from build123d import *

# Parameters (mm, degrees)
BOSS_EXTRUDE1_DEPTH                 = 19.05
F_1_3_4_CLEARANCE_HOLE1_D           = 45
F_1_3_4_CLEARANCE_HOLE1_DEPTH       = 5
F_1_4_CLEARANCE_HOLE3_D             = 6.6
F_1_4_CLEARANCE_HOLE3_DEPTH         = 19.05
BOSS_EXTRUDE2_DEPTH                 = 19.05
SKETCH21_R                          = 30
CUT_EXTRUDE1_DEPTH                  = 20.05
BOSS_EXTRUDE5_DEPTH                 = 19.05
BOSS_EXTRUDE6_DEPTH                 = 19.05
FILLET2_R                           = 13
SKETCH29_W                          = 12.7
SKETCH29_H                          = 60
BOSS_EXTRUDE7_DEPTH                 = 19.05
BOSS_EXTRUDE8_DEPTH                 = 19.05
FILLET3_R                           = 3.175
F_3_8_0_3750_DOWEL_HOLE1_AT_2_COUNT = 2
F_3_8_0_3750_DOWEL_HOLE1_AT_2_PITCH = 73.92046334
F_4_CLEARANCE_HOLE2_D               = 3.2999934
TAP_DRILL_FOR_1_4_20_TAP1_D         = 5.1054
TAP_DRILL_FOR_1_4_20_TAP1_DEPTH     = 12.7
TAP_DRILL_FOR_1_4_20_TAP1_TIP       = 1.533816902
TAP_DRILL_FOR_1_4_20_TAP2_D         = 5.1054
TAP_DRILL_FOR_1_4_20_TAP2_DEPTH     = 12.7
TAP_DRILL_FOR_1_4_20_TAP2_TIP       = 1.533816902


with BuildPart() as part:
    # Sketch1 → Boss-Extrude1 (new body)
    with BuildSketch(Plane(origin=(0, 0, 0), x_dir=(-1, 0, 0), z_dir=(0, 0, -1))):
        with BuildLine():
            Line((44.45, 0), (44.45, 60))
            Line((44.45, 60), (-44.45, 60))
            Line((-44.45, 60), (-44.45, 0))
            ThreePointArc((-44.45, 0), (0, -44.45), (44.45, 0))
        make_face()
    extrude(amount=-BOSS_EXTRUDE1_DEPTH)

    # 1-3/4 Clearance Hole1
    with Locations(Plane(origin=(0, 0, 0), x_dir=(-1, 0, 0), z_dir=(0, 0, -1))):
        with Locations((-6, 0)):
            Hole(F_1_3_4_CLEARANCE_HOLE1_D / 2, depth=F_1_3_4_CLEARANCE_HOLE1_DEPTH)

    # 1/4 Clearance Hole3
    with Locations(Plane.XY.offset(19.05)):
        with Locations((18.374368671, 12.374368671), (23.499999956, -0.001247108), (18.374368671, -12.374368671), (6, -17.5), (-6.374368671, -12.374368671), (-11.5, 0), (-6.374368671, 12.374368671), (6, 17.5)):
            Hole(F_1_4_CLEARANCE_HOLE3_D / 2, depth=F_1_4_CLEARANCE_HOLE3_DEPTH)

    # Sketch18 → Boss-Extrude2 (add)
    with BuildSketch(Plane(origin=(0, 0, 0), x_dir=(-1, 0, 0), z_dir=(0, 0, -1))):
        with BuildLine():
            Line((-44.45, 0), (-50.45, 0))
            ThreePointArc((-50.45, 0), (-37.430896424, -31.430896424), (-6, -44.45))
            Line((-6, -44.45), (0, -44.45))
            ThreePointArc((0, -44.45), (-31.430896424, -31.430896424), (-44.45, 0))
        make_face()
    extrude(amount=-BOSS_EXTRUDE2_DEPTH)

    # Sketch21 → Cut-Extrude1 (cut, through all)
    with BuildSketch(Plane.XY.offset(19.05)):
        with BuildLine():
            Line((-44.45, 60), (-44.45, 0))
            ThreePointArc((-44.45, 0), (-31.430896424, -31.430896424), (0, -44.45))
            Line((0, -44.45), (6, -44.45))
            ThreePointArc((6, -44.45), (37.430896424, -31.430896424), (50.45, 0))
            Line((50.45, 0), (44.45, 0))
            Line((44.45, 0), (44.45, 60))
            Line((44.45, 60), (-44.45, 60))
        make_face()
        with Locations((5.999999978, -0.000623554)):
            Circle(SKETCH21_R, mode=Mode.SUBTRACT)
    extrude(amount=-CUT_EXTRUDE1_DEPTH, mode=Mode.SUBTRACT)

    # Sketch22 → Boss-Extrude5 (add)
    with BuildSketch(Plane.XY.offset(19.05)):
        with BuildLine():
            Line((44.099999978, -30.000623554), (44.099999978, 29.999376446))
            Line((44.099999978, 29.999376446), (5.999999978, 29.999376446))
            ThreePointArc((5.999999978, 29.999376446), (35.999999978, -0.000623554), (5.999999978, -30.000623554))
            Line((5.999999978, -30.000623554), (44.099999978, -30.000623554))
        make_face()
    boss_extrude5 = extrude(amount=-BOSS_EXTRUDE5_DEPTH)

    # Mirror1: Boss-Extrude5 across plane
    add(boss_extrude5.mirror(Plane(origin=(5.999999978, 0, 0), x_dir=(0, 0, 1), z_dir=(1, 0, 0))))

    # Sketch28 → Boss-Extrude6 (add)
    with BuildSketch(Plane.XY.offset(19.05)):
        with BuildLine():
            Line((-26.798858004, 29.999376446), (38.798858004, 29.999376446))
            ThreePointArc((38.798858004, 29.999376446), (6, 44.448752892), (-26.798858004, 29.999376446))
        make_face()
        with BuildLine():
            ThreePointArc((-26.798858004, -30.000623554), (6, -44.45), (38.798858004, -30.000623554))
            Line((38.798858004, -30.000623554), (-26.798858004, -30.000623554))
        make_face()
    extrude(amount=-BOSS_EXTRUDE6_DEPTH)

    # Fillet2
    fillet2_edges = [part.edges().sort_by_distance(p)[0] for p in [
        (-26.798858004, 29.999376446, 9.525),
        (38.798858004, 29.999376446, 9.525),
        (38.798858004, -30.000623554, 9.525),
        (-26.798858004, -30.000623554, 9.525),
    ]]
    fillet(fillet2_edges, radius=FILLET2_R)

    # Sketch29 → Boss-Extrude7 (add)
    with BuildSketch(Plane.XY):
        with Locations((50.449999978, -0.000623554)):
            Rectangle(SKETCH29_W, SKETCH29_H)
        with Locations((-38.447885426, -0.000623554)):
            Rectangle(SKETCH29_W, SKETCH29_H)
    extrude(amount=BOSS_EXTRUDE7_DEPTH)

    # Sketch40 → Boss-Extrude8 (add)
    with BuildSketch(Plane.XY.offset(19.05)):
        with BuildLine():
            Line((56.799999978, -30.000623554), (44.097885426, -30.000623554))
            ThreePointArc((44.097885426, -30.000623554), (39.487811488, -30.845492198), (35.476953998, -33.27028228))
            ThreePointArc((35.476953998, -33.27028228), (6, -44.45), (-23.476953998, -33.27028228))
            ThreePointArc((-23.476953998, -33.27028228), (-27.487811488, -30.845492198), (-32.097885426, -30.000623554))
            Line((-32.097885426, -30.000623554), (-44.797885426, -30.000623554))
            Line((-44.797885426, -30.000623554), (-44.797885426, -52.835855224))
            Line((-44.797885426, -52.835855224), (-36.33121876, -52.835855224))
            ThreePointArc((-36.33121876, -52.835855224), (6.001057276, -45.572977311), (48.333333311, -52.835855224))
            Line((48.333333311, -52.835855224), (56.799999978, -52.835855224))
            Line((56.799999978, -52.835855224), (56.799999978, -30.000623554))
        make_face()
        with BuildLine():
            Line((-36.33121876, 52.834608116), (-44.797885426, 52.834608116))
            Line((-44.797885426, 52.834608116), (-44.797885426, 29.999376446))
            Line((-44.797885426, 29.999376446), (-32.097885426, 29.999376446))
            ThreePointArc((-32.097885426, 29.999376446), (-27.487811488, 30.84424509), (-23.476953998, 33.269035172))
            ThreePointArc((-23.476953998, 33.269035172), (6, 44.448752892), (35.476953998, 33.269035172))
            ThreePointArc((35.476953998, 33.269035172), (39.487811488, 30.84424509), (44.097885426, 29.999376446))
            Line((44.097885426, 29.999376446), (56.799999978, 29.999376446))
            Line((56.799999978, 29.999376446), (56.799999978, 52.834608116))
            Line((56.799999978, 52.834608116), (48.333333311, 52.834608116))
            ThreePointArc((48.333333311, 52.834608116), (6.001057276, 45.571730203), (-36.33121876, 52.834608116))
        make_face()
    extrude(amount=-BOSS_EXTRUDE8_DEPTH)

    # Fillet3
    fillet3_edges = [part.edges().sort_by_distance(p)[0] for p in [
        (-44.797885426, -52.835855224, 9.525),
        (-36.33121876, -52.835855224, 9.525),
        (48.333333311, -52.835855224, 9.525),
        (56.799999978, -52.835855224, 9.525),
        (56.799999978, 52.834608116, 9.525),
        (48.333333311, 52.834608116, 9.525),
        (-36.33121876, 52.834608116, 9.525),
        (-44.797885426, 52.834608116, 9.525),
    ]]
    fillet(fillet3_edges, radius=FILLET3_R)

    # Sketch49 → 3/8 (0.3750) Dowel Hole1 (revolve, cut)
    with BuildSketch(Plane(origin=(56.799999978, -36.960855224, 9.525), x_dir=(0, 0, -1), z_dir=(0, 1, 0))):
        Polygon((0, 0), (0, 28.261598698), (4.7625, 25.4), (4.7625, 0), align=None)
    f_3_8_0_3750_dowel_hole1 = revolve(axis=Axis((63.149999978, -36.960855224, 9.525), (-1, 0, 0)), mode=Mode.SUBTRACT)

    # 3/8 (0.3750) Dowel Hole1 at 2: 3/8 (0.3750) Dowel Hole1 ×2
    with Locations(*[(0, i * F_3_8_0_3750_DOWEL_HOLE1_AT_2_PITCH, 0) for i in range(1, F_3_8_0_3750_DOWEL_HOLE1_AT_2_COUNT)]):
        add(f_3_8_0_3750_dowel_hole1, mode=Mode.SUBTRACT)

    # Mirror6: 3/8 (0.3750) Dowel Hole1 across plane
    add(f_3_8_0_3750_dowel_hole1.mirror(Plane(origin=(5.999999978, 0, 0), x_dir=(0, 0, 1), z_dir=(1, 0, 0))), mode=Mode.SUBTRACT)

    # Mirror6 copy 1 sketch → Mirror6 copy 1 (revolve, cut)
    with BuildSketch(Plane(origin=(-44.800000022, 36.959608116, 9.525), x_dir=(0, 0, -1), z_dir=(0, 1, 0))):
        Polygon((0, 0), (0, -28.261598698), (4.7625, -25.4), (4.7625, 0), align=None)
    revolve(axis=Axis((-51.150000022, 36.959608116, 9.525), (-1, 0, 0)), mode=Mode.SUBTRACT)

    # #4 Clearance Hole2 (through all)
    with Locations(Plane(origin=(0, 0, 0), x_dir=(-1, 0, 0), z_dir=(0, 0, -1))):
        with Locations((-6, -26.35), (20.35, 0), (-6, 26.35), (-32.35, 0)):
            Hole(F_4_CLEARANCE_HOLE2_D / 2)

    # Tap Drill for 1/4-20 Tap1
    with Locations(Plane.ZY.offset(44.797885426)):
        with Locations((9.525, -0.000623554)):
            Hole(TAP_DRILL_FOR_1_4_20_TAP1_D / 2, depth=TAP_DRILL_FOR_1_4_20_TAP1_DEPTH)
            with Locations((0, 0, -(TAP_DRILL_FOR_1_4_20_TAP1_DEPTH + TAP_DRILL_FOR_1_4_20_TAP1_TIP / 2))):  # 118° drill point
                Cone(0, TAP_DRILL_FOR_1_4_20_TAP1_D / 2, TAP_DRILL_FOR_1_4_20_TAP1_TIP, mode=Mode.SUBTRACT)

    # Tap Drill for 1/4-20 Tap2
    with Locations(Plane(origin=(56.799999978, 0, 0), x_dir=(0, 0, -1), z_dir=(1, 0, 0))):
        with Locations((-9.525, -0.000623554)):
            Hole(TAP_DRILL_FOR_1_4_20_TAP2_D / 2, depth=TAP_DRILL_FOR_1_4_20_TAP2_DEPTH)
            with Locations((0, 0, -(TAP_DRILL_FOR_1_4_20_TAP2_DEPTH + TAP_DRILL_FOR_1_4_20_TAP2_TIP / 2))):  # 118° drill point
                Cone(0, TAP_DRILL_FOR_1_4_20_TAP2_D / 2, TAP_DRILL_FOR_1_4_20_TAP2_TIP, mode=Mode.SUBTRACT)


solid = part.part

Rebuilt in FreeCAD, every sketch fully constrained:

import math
import FreeCAD as App
import Part
import Sketcher
Q = App.Units.Quantity


def edges_at(feature, points):
    """Names of the edges that pass closest to the given points."""
    edges = feature.Shape.Edges
    near = lambda p: min(range(len(edges)), key=lambda i: edges[i].distToShape(Part.Vertex(*p))[0])
    return sorted({f"Edge{near(p) + 1}" for p in points})

doc = App.newDocument("Part")
body = doc.addObject("PartDesign::Body", "Body")

sketch1 = body.newObject("Sketcher::SketchObject", "Sketch")
sketch1.AttachmentSupport = (doc.getObject("XY_Plane"), [""])
sketch1.MapMode = "FlatFace"
sketch1.addGeometry(Part.LineSegment(App.Vector(-44.45, 0, 0), App.Vector(-44.45, 60, 0)), False)
sketch1.addGeometry(Part.LineSegment(App.Vector(-44.45, 60, 0), App.Vector(44.45, 60, 0)), False)
sketch1.addGeometry(Part.LineSegment(App.Vector(44.45, 60, 0), App.Vector(44.45, 0, 0)), False)
sketch1.addGeometry(Part.ArcOfCircle(Part.Circle(App.Vector(0, 0, 0), App.Vector(0, 0, 1), 44.45), math.radians(180), math.radians(360)), False)
sketch1.addConstraint(Sketcher.Constraint("Coincident", 0, 2, 1, 1))
sketch1.addConstraint(Sketcher.Constraint("Coincident", 1, 2, 2, 1))
sketch1.addConstraint(Sketcher.Constraint("Tangent", 2, 2, 3, 2))
sketch1.addConstraint(Sketcher.Constraint("Tangent", 3, 1, 0, 1))
sketch1.addConstraint(Sketcher.Constraint("Vertical", 0))
sketch1.addConstraint(Sketcher.Constraint("Horizontal", 1))
sketch1.addConstraint(Sketcher.Constraint("Vertical", 2))
sketch1.addConstraint(Sketcher.Constraint("Coincident", 3, 3, -1, 1))
sketch1.addConstraint(Sketcher.Constraint("Radius", 3, Q("1.75 in")))
sketch1.addConstraint(Sketcher.Constraint("DistanceY", 0, 1, 0, 2, Q("60 mm")))
pad1 = body.newObject("PartDesign::Pad", "Pad")
pad1.Profile = sketch1
pad1.Length = Q("0.75 in")

sketch2 = body.newObject("Sketcher::SketchObject", "Sketch001")
sketch2.AttachmentSupport = (doc.getObject("XY_Plane"), [""])
sketch2.MapMode = "FlatFace"
sketch2.addGeometry(Part.Circle(App.Vector(6, 0, 0), App.Vector(0, 0, 1), 22.5), False)
sketch2.addConstraint(Sketcher.Constraint("PointOnObject", 0, 3, -1))
sketch2.addConstraint(Sketcher.Constraint("Diameter", 0, Q("45 mm")))
sketch2.addConstraint(Sketcher.Constraint("DistanceX", -1, 1, 0, 3, Q("6 mm")))
doc.recompute()
hole = body.newObject("PartDesign::Hole", "Hole")
hole.Profile = sketch2
hole.ThreadType = "None"
hole.Diameter = 45
hole.DepthType = "Dimension"
hole.Depth = 5
hole.DrillPoint = "Flat"
hole.Reversed = True

sketch3 = body.newObject("Sketcher::SketchObject", "Sketch002")
sketch3.AttachmentSupport = (doc.getObject("XY_Plane"), [""])
sketch3.MapMode = "FlatFace"
sketch3.AttachmentOffset = App.Placement(App.Vector(0, 0, 0.75 * 25.4), App.Rotation())
sketch3.addGeometry(Part.Circle(App.Vector(18.374369, 12.374369, 0), App.Vector(0, 0, 1), 3.3), False)
sketch3.addGeometry(Part.Circle(App.Vector(23.5, -0.001247, 0), App.Vector(0, 0, 1), 3.3), False)
sketch3.addGeometry(Part.Circle(App.Vector(18.374369, -12.374369, 0), App.Vector(0, 0, 1), 3.3), False)
sketch3.addGeometry(Part.Circle(App.Vector(6, -17.5, 0), App.Vector(0, 0, 1), 3.3), False)
sketch3.addGeometry(Part.Circle(App.Vector(-6.374369, -12.374369, 0), App.Vector(0, 0, 1), 3.3), False)
sketch3.addGeometry(Part.Circle(App.Vector(-11.5, 0, 0), App.Vector(0, 0, 1), 3.3), False)
sketch3.addGeometry(Part.Circle(App.Vector(-6.374369, 12.374369, 0), App.Vector(0, 0, 1), 3.3), False)
sketch3.addGeometry(Part.Circle(App.Vector(6, 17.5, 0), App.Vector(0, 0, 1), 3.3), False)
sketch3.addConstraint(Sketcher.Constraint("Equal", 0, 1))
sketch3.addConstraint(Sketcher.Constraint("Equal", 1, 2))
sketch3.addConstraint(Sketcher.Constraint("Equal", 2, 3))
sketch3.addConstraint(Sketcher.Constraint("Equal", 3, 4))
sketch3.addConstraint(Sketcher.Constraint("Equal", 4, 5))
sketch3.addConstraint(Sketcher.Constraint("Equal", 5, 6))
sketch3.addConstraint(Sketcher.Constraint("Equal", 6, 7))
sketch3.addConstraint(Sketcher.Constraint("Symmetric", 0, 3, 2, 3, -1))
sketch3.addConstraint(Sketcher.Constraint("Symmetric", 4, 3, 6, 3, -1))
sketch3.addConstraint(Sketcher.Constraint("Symmetric", 3, 3, 7, 3, -1))
sketch3.addConstraint(Sketcher.Constraint("PointOnObject", 5, 3, -1))
sketch3.addConstraint(Sketcher.Constraint("Horizontal", 2, 3, 4, 3))
sketch3.addConstraint(Sketcher.Constraint("Diameter", 0, Q("6.6 mm")))
sketch3.addConstraint(Sketcher.Constraint("DistanceX", -1, 1, 1, 3, Q("23.5 mm")))
sketch3.addConstraint(Sketcher.Constraint("DistanceX", -1, 1, 3, 3, Q("6 mm")))
sketch3.addConstraint(Sketcher.Constraint("DistanceY", 3, 3, -1, 1, Q("17.5 mm")))
sketch3.addConstraint(Sketcher.Constraint("DistanceX", 5, 3, -1, 1, Q("11.5 mm")))
sketch3.addConstraint(Sketcher.Constraint("DistanceX", -1, 1, 0, 3, Q("18.374369 mm")))
sketch3.addConstraint(Sketcher.Constraint("DistanceY", -1, 1, 0, 3, Q("12.374369 mm")))
sketch3.addConstraint(Sketcher.Constraint("DistanceX", 4, 3, -1, 1, Q("6.374369 mm")))
sketch3.addConstraint(Sketcher.Constraint("DistanceY", 2, 3, 1, 3, Q("12.373122 mm")))
doc.recompute()
hole2 = body.newObject("PartDesign::Hole", "Hole001")
hole2.Profile = sketch3
hole2.ThreadType = "None"
hole2.Diameter = 6.6
hole2.DepthType = "Dimension"
hole2.Depth = Q("0.75 in")
hole2.DrillPoint = "Flat"

sketch4 = body.newObject("Sketcher::SketchObject", "Sketch003")
sketch4.AttachmentSupport = (doc.getObject("XY_Plane"), [""])
sketch4.MapMode = "FlatFace"
sketch4.addGeometry(Part.LineSegment(App.Vector(44.45, 0, 0), App.Vector(50.45, 0, 0)), False)
sketch4.addGeometry(Part.ArcOfCircle(Part.Circle(App.Vector(6, 0, 0), App.Vector(0, 0, 1), 44.45), math.radians(-90), math.radians(0)), False)
sketch4.addGeometry(Part.LineSegment(App.Vector(6, -44.45, 0), App.Vector(0, -44.45, 0)), False)
sketch4.addGeometry(Part.ArcOfCircle(Part.Circle(App.Vector(0, 0, 0), App.Vector(0, 0, 1), 44.45), math.radians(-90), math.radians(0)), False)
sketch4.addConstraint(Sketcher.Constraint("Coincident", 0, 2, 1, 2))
sketch4.addConstraint(Sketcher.Constraint("Tangent", 1, 1, 2, 1))
sketch4.addConstraint(Sketcher.Constraint("Tangent", 2, 2, 3, 1))
sketch4.addConstraint(Sketcher.Constraint("Coincident", 3, 2, 0, 1))
sketch4.addConstraint(Sketcher.Constraint("Horizontal", 0))
sketch4.addConstraint(Sketcher.Constraint("Horizontal", 2))
sketch4.addConstraint(Sketcher.Constraint("Coincident", 3, 3, -1, 1))
sketch4.addConstraint(Sketcher.Constraint("Equal", 1, 3))
sketch4.addConstraint(Sketcher.Constraint("PointOnObject", 0, 2, -1))
sketch4.addConstraint(Sketcher.Constraint("Radius", 1, Q("1.75 in")))
sketch4.addConstraint(Sketcher.Constraint("DistanceX", 0, 1, 0, 2, Q("6 mm")))
pad2 = body.newObject("PartDesign::Pad", "Pad001")
pad2.Profile = sketch4
pad2.Length = Q("0.75 in")

sketch5 = body.newObject("Sketcher::SketchObject", "Sketch004")
sketch5.AttachmentSupport = (doc.getObject("XY_Plane"), [""])
sketch5.MapMode = "FlatFace"
sketch5.AttachmentOffset = App.Placement(App.Vector(0, 0, 0.75 * 25.4), App.Rotation())
sketch5.addGeometry(Part.LineSegment(App.Vector(-44.45, 60, 0), App.Vector(-44.45, 0, 0)), False)
sketch5.addGeometry(Part.ArcOfCircle(Part.Circle(App.Vector(0, 0, 0), App.Vector(0, 0, 1), 44.45), math.radians(180), math.radians(270)), False)
sketch5.addGeometry(Part.LineSegment(App.Vector(0, -44.45, 0), App.Vector(6, -44.45, 0)), False)
sketch5.addGeometry(Part.ArcOfCircle(Part.Circle(App.Vector(6, 0, 0), App.Vector(0, 0, 1), 44.45), math.radians(-90), math.radians(0)), False)
sketch5.addGeometry(Part.LineSegment(App.Vector(50.45, 0, 0), App.Vector(44.45, 0, 0)), False)
sketch5.addGeometry(Part.LineSegment(App.Vector(44.45, 0, 0), App.Vector(44.45, 60, 0)), False)
sketch5.addGeometry(Part.LineSegment(App.Vector(44.45, 60, 0), App.Vector(-44.45, 60, 0)), False)
sketch5.addGeometry(Part.Circle(App.Vector(6, -0.000624, 0), App.Vector(0, 0, 1), 30), False)
sketch5.addConstraint(Sketcher.Constraint("Tangent", 0, 2, 1, 1))
sketch5.addConstraint(Sketcher.Constraint("Tangent", 1, 2, 2, 1))
sketch5.addConstraint(Sketcher.Constraint("Tangent", 2, 2, 3, 1))
sketch5.addConstraint(Sketcher.Constraint("Coincident", 3, 2, 4, 1))
sketch5.addConstraint(Sketcher.Constraint("Coincident", 4, 2, 5, 1))
sketch5.addConstraint(Sketcher.Constraint("Coincident", 5, 2, 6, 1))
sketch5.addConstraint(Sketcher.Constraint("Coincident", 6, 2, 0, 1))
sketch5.addConstraint(Sketcher.Constraint("Vertical", 0))
sketch5.addConstraint(Sketcher.Constraint("Horizontal", 2))
sketch5.addConstraint(Sketcher.Constraint("Horizontal", 4))
sketch5.addConstraint(Sketcher.Constraint("Vertical", 5))
sketch5.addConstraint(Sketcher.Constraint("Horizontal", 6))
sketch5.addConstraint(Sketcher.Constraint("Coincident", 1, 3, -1, 1))
sketch5.addConstraint(Sketcher.Constraint("Equal", 1, 3))
sketch5.addConstraint(Sketcher.Constraint("Symmetric", 0, 2, 4, 2, -1, 1))
sketch5.addConstraint(Sketcher.Constraint("Vertical", 3, 3, 7, 3))
sketch5.addConstraint(Sketcher.Constraint("Radius", 1, Q("1.75 in")))
sketch5.addConstraint(Sketcher.Constraint("Diameter", 7, Q("60 mm")))
sketch5.addConstraint(Sketcher.Constraint("DistanceX", 2, 1, 2, 2, Q("6 mm")))
sketch5.addConstraint(Sketcher.Constraint("DistanceY", 0, 2, 0, 1, Q("60 mm")))
sketch5.addConstraint(Sketcher.Constraint("DistanceY", 7, 3, -1, 1, Q("0.000624 mm")))
pocket1 = body.newObject("PartDesign::Pocket", "Pocket")
pocket1.Profile = sketch5
pocket1.Type = "ThroughAll"

sketch6 = body.newObject("Sketcher::SketchObject", "Sketch005")
sketch6.AttachmentSupport = (doc.getObject("XY_Plane"), [""])
sketch6.MapMode = "FlatFace"
sketch6.AttachmentOffset = App.Placement(App.Vector(0, 0, 0.75 * 25.4), App.Rotation())
sketch6.addGeometry(Part.LineSegment(App.Vector(44.1, -30.000624, 0), App.Vector(44.1, 29.999376, 0)), False)
sketch6.addGeometry(Part.LineSegment(App.Vector(44.1, 29.999376, 0), App.Vector(6, 29.999376, 0)), False)
sketch6.addGeometry(Part.ArcOfCircle(Part.Circle(App.Vector(6, -0.000624, 0), App.Vector(0, 0, 1), 30), math.radians(-90), math.radians(90)), False)
sketch6.addGeometry(Part.LineSegment(App.Vector(6, -30.000624, 0), App.Vector(44.1, -30.000624, 0)), False)
sketch6.addConstraint(Sketcher.Constraint("Coincident", 0, 2, 1, 1))
sketch6.addConstraint(Sketcher.Constraint("Tangent", 1, 2, 2, 2))
sketch6.addConstraint(Sketcher.Constraint("Tangent", 2, 1, 3, 1))
sketch6.addConstraint(Sketcher.Constraint("Coincident", 3, 2, 0, 1))
sketch6.addConstraint(Sketcher.Constraint("Vertical", 0))
sketch6.addConstraint(Sketcher.Constraint("Horizontal", 1))
sketch6.addConstraint(Sketcher.Constraint("Horizontal", 3))
sketch6.addConstraint(Sketcher.Constraint("DistanceX", 1, 2, 1, 1, Q("1.5 in")))
sketch6.addConstraint(Sketcher.Constraint("Radius", 2, Q("30 mm")))
sketch6.addConstraint(Sketcher.Constraint("DistanceX", -1, 1, 2, 3, Q("6 mm")))
sketch6.addConstraint(Sketcher.Constraint("DistanceY", 2, 3, -1, 1, Q("0.000624 mm")))
pad3 = body.newObject("PartDesign::Pad", "Pad002")
pad3.Profile = sketch6
pad3.Length = Q("0.75 in")
pad3.Reversed = True
doc.recompute()

datumplane = body.newObject("PartDesign::Plane", "DatumPlane")
datumplane.AttachmentSupport = (doc.getObject("YZ_Plane"), [""])
datumplane.MapMode = "FlatFace"
datumplane.AttachmentOffset = App.Placement(App.Vector(0, 0, 6), App.Rotation())
mirrored = body.newObject("PartDesign::Mirrored", "Mirrored")
mirrored.Originals = [pad3]
mirrored.MirrorPlane = (datumplane, [""])
body.Tip = mirrored

sketch7 = body.newObject("Sketcher::SketchObject", "Sketch006")
sketch7.AttachmentSupport = (doc.getObject("XY_Plane"), [""])
sketch7.MapMode = "FlatFace"
sketch7.AttachmentOffset = App.Placement(App.Vector(0, 0, 0.75 * 25.4), App.Rotation())
sketch7.addGeometry(Part.LineSegment(App.Vector(-26.798858, 29.999376, 0), App.Vector(38.798858, 29.999376, 0)), False)
sketch7.addGeometry(Part.ArcOfCircle(Part.Circle(App.Vector(6, -0.001247, 0), App.Vector(0, 0, 1), 44.45), math.radians(42.448688), math.radians(137.551312)), False)
sketch7.addGeometry(Part.ArcOfCircle(Part.Circle(App.Vector(6, 0, 0), App.Vector(0, 0, 1), 44.45), math.radians(-137.551312), math.radians(-42.448688)), False)
sketch7.addGeometry(Part.LineSegment(App.Vector(38.798858, -30.000624, 0), App.Vector(-26.798858, -30.000624, 0)), False)
sketch7.addConstraint(Sketcher.Constraint("Coincident", 0, 1, 1, 2))
sketch7.addConstraint(Sketcher.Constraint("Coincident", 1, 1, 0, 2))
sketch7.addConstraint(Sketcher.Constraint("Coincident", 2, 1, 3, 2))
sketch7.addConstraint(Sketcher.Constraint("Coincident", 3, 1, 2, 2))
sketch7.addConstraint(Sketcher.Constraint("Horizontal", 0))
sketch7.addConstraint(Sketcher.Constraint("Horizontal", 3))
sketch7.addConstraint(Sketcher.Constraint("Equal", 1, 2))
sketch7.addConstraint(Sketcher.Constraint("PointOnObject", 2, 3, -1))
sketch7.addConstraint(Sketcher.Constraint("Vertical", 1, 3, 2, 3))
sketch7.addConstraint(Sketcher.Constraint("Vertical", 0, 1, 2, 1))
sketch7.addConstraint(Sketcher.Constraint("Radius", 1, Q("1.75 in")))
sketch7.addConstraint(Sketcher.Constraint("DistanceX", -1, 1, 1, 3, Q("6 mm")))
sketch7.addConstraint(Sketcher.Constraint("DistanceY", 2, 1, 0, 1, Q("60 mm")))
sketch7.addConstraint(Sketcher.Constraint("DistanceX", 0, 1, 0, 2, Q("65.597716 mm")))
pad4 = body.newObject("PartDesign::Pad", "Pad003")
pad4.Profile = sketch7
pad4.Length = Q("0.75 in")
pad4.Reversed = True
doc.recompute()

fillet = body.newObject("PartDesign::Fillet", "Fillet")
fillet.Base = (pad4, edges_at(pad4, [
    (-26.799, 29.999, 9.525),
    (38.799, 29.999, 9.525),
    (38.799, -30.001, 9.525),
    (-26.799, -30.001, 9.525),
]))
fillet.Radius = 13

sketch8 = body.newObject("Sketcher::SketchObject", "Sketch007")
sketch8.AttachmentSupport = (doc.getObject("XY_Plane"), [""])
sketch8.MapMode = "FlatFace"
sketch8.addGeometry(Part.LineSegment(App.Vector(44.1, 29.999376, 0), App.Vector(44.1, -30.000624, 0)), False)
sketch8.addGeometry(Part.LineSegment(App.Vector(44.1, -30.000624, 0), App.Vector(56.8, -30.000624, 0)), False)
sketch8.addGeometry(Part.LineSegment(App.Vector(56.8, -30.000624, 0), App.Vector(56.8, 29.999376, 0)), False)
sketch8.addGeometry(Part.LineSegment(App.Vector(56.8, 29.999376, 0), App.Vector(44.1, 29.999376, 0)), False)
sketch8.addGeometry(Part.LineSegment(App.Vector(-44.797885, 29.999376, 0), App.Vector(-44.797885, -30.000624, 0)), False)
sketch8.addGeometry(Part.LineSegment(App.Vector(-44.797885, -30.000624, 0), App.Vector(-32.097885, -30.000624, 0)), False)
sketch8.addGeometry(Part.LineSegment(App.Vector(-32.097885, -30.000624, 0), App.Vector(-32.097885, 29.999376, 0)), False)
sketch8.addGeometry(Part.LineSegment(App.Vector(-32.097885, 29.999376, 0), App.Vector(-44.797885, 29.999376, 0)), False)
sketch8.addConstraint(Sketcher.Constraint("Coincident", 0, 2, 1, 1))
sketch8.addConstraint(Sketcher.Constraint("Coincident", 1, 2, 2, 1))
sketch8.addConstraint(Sketcher.Constraint("Coincident", 2, 2, 3, 1))
sketch8.addConstraint(Sketcher.Constraint("Coincident", 3, 2, 0, 1))
sketch8.addConstraint(Sketcher.Constraint("Coincident", 4, 2, 5, 1))
sketch8.addConstraint(Sketcher.Constraint("Coincident", 5, 2, 6, 1))
sketch8.addConstraint(Sketcher.Constraint("Coincident", 6, 2, 7, 1))
sketch8.addConstraint(Sketcher.Constraint("Coincident", 7, 2, 4, 1))
sketch8.addConstraint(Sketcher.Constraint("Vertical", 0))
sketch8.addConstraint(Sketcher.Constraint("Horizontal", 1))
sketch8.addConstraint(Sketcher.Constraint("Vertical", 2))
sketch8.addConstraint(Sketcher.Constraint("Horizontal", 3))
sketch8.addConstraint(Sketcher.Constraint("Vertical", 4))
sketch8.addConstraint(Sketcher.Constraint("Horizontal", 5))
sketch8.addConstraint(Sketcher.Constraint("Vertical", 6))
sketch8.addConstraint(Sketcher.Constraint("Horizontal", 7))
sketch8.addConstraint(Sketcher.Constraint("Horizontal", 1, 2, 4, 2))
sketch8.addConstraint(Sketcher.Constraint("Horizontal", 3, 2, 6, 2))
sketch8.addConstraint(Sketcher.Constraint("Equal", 3, 5))
sketch8.addConstraint(Sketcher.Constraint("DistanceX", 1, 1, 1, 2, Q("0.5 in")))
sketch8.addConstraint(Sketcher.Constraint("DistanceY", 0, 2, 0, 1, Q("60 mm")))
sketch8.addConstraint(Sketcher.Constraint("DistanceX", -1, 1, 0, 2, Q("44.1 mm")))
sketch8.addConstraint(Sketcher.Constraint("DistanceY", 0, 2, -1, 1, Q("30.000624 mm")))
sketch8.addConstraint(Sketcher.Constraint("DistanceX", 4, 2, -1, 1, Q("44.797885 mm")))
pad5 = body.newObject("PartDesign::Pad", "Pad004")
pad5.Profile = sketch8
pad5.Length = Q("0.75 in")

sketch9 = body.newObject("Sketcher::SketchObject", "Sketch008")
sketch9.AttachmentSupport = (doc.getObject("XY_Plane"), [""])
sketch9.MapMode = "FlatFace"
sketch9.AttachmentOffset = App.Placement(App.Vector(0, 0, 0.75 * 25.4), App.Rotation())
sketch9.addGeometry(Part.LineSegment(App.Vector(56.8, -30.000624, 0), App.Vector(44.097885, -30.000624, 0)), False)
sketch9.addGeometry(Part.ArcOfCircle(Part.Circle(App.Vector(44.097885, -43.000624, 0), App.Vector(0, 0, 1), 13), math.radians(90), math.radians(131.540445)), False)
sketch9.addGeometry(Part.ArcOfCircle(Part.Circle(App.Vector(6, 0, 0), App.Vector(0, 0, 1), 44.45), math.radians(-131.540445), math.radians(-48.459555)), False)
sketch9.addGeometry(Part.ArcOfCircle(Part.Circle(App.Vector(-32.097885, -43.000624, 0), App.Vector(0, 0, 1), 13), math.radians(48.459555), math.radians(90)), False)
sketch9.addGeometry(Part.LineSegment(App.Vector(-32.097885, -30.000624, 0), App.Vector(-44.797885, -30.000624, 0)), False)
sketch9.addGeometry(Part.LineSegment(App.Vector(-44.797885, -30.000624, 0), App.Vector(-44.797885, -52.835855, 0)), False)
sketch9.addGeometry(Part.LineSegment(App.Vector(-44.797885, -52.835855, 0), App.Vector(-36.331219, -52.835855, 0)), False)
sketch9.addGeometry(Part.ArcOfCircle(Part.Circle(App.Vector(6.001057, -172.572977, 0), App.Vector(0, 0, 1), 127), math.radians(70.529285), math.radians(109.470715)), False)
sketch9.addGeometry(Part.LineSegment(App.Vector(48.333333, -52.835855, 0), App.Vector(56.8, -52.835855, 0)), False)
sketch9.addGeometry(Part.LineSegment(App.Vector(56.8, -52.835855, 0), App.Vector(56.8, -30.000624, 0)), False)
sketch9.addGeometry(Part.LineSegment(App.Vector(-36.331219, 52.834608, 0), App.Vector(-44.797885, 52.834608, 0)), False)
sketch9.addGeometry(Part.LineSegment(App.Vector(-44.797885, 52.834608, 0), App.Vector(-44.797885, 29.999376, 0)), False)
sketch9.addGeometry(Part.LineSegment(App.Vector(-44.797885, 29.999376, 0), App.Vector(-32.097885, 29.999376, 0)), False)
sketch9.addGeometry(Part.ArcOfCircle(Part.Circle(App.Vector(-32.097885, 42.999376, 0), App.Vector(0, 0, 1), 13), math.radians(-90), math.radians(-48.459555)), False)
sketch9.addGeometry(Part.ArcOfCircle(Part.Circle(App.Vector(6, -0.001247, 0), App.Vector(0, 0, 1), 44.45), math.radians(48.459555), math.radians(131.540445)), False)
sketch9.addGeometry(Part.ArcOfCircle(Part.Circle(App.Vector(44.097885, 42.999376, 0), App.Vector(0, 0, 1), 13), math.radians(-131.540445), math.radians(-90)), False)
sketch9.addGeometry(Part.LineSegment(App.Vector(44.097885, 29.999376, 0), App.Vector(56.8, 29.999376, 0)), False)
sketch9.addGeometry(Part.LineSegment(App.Vector(56.8, 29.999376, 0), App.Vector(56.8, 52.834608, 0)), False)
sketch9.addGeometry(Part.LineSegment(App.Vector(56.8, 52.834608, 0), App.Vector(48.333333, 52.834608, 0)), False)
sketch9.addGeometry(Part.ArcOfCircle(Part.Circle(App.Vector(6.001057, 172.57173, 0), App.Vector(0, 0, 1), 127), math.radians(-109.470715), math.radians(-70.529285)), False)
sketch9.addConstraint(Sketcher.Constraint("Tangent", 0, 2, 1, 1))
sketch9.addConstraint(Sketcher.Constraint("Tangent", 1, 2, 2, 2))
sketch9.addConstraint(Sketcher.Constraint("Tangent", 2, 1, 3, 1))
sketch9.addConstraint(Sketcher.Constraint("Tangent", 3, 2, 4, 1))
sketch9.addConstraint(Sketcher.Constraint("Coincident", 4, 2, 5, 1))
sketch9.addConstraint(Sketcher.Constraint("Coincident", 5, 2, 6, 1))
sketch9.addConstraint(Sketcher.Constraint("Coincident", 6, 2, 7, 2))
sketch9.addConstraint(Sketcher.Constraint("Coincident", 7, 1, 8, 1))
sketch9.addConstraint(Sketcher.Constraint("Coincident", 8, 2, 9, 1))
sketch9.addConstraint(Sketcher.Constraint("Coincident", 9, 2, 0, 1))
sketch9.addConstraint(Sketcher.Constraint("Coincident", 10, 2, 11, 1))
sketch9.addConstraint(Sketcher.Constraint("Coincident", 11, 2, 12, 1))
sketch9.addConstraint(Sketcher.Constraint("Tangent", 12, 2, 13, 1))
sketch9.addConstraint(Sketcher.Constraint("Tangent", 13, 2, 14, 2))
sketch9.addConstraint(Sketcher.Constraint("Tangent", 14, 1, 15, 1))
sketch9.addConstraint(Sketcher.Constraint("Tangent", 15, 2, 16, 1))
sketch9.addConstraint(Sketcher.Constraint("Coincident", 16, 2, 17, 1))
sketch9.addConstraint(Sketcher.Constraint("Coincident", 17, 2, 18, 1))
sketch9.addConstraint(Sketcher.Constraint("Coincident", 18, 2, 19, 2))
sketch9.addConstraint(Sketcher.Constraint("Coincident", 19, 1, 10, 1))
sketch9.addConstraint(Sketcher.Constraint("Horizontal", 0))
sketch9.addConstraint(Sketcher.Constraint("Horizontal", 4))
sketch9.addConstraint(Sketcher.Constraint("Vertical", 5))
sketch9.addConstraint(Sketcher.Constraint("Horizontal", 6))
sketch9.addConstraint(Sketcher.Constraint("Horizontal", 8))
sketch9.addConstraint(Sketcher.Constraint("Vertical", 9))
sketch9.addConstraint(Sketcher.Constraint("Horizontal", 10))
sketch9.addConstraint(Sketcher.Constraint("Vertical", 11))
sketch9.addConstraint(Sketcher.Constraint("Horizontal", 12))
sketch9.addConstraint(Sketcher.Constraint("Horizontal", 16))
sketch9.addConstraint(Sketcher.Constraint("Vertical", 17))
sketch9.addConstraint(Sketcher.Constraint("Horizontal", 18))
sketch9.addConstraint(Sketcher.Constraint("Equal", 1, 3))
sketch9.addConstraint(Sketcher.Constraint("Equal", 3, 13))
sketch9.addConstraint(Sketcher.Constraint("Equal", 2, 14))
sketch9.addConstraint(Sketcher.Constraint("Equal", 13, 15))
sketch9.addConstraint(Sketcher.Constraint("Equal", 7, 19))
sketch9.addConstraint(Sketcher.Constraint("PointOnObject", 2, 3, -1))
sketch9.addConstraint(Sketcher.Constraint("Horizontal", 1, 3, 3, 3))
sketch9.addConstraint(Sketcher.Constraint("Horizontal", 13, 3, 15, 3))
sketch9.addConstraint(Sketcher.Constraint("Horizontal", 6, 2, 7, 1))
sketch9.addConstraint(Sketcher.Constraint("Horizontal", 10, 2, 17, 2))
sketch9.addConstraint(Sketcher.Constraint("Vertical", 3, 3, 13, 3))
sketch9.addConstraint(Sketcher.Constraint("Vertical", 2, 3, 14, 3))
sketch9.addConstraint(Sketcher.Constraint("Vertical", 7, 3, 19, 3))
sketch9.addConstraint(Sketcher.Constraint("Vertical", 5, 2, 10, 2))
sketch9.addConstraint(Sketcher.Constraint("Vertical", 9, 2, 16, 2))
sketch9.addConstraint(Sketcher.Constraint("Vertical", 7, 1, 18, 2))
sketch9.addConstraint(Sketcher.Constraint("Equal", 6, 8))
sketch9.addConstraint(Sketcher.Constraint("Equal", 9, 11))
sketch9.addConstraint(Sketcher.Constraint("Radius", 7, Q("5 in")))
sketch9.addConstraint(Sketcher.Constraint("Radius", 2, Q("1.75 in")))
sketch9.addConstraint(Sketcher.Constraint("DistanceX", 4, 2, 4, 1, Q("0.5 in")))
sketch9.addConstraint(Sketcher.Constraint("DistanceX", 14, 3, 8, 2, Q("2 in")))
sketch9.addConstraint(Sketcher.Constraint("Radius", 1, Q("13 mm")))
sketch9.addConstraint(Sketcher.Constraint("DistanceY", 5, 2, 5, 1, Q("22.835232 mm")))
sketch9.addConstraint(Sketcher.Constraint("DistanceX", -1, 1, 2, 3, Q("6 mm")))
sketch9.addConstraint(Sketcher.Constraint("DistanceY", 3, 3, 13, 3, Q("86 mm")))
sketch9.addConstraint(Sketcher.Constraint("DistanceX", 0, 2, 0, 1, Q("12.702115 mm")))
sketch9.addConstraint(Sketcher.Constraint("DistanceX", 6, 1, 6, 2, Q("8.466667 mm")))
pad6 = body.newObject("PartDesign::Pad", "Pad005")
pad6.Profile = sketch9
pad6.Length = Q("0.75 in")
pad6.Reversed = True
doc.recompute()

fillet2 = body.newObject("PartDesign::Fillet", "Fillet001")
fillet2.Base = (pad6, edges_at(pad6, [
    (-44.798, -52.836, 9.525),
    (-36.331, -52.836, 9.525),
    (48.333, -52.836, 9.525),
    (56.8, -52.836, 9.525),
    (56.8, 52.835, 9.525),
    (48.333, 52.835, 9.525),
    (-36.331, 52.835, 9.525),
    (-44.798, 52.835, 9.525),
]))
fillet2.Radius = Q("0.125 in")

sketch10 = body.newObject("Sketcher::SketchObject", "Sketch009")
sketch10.AttachmentSupport = (doc.getObject("XZ_Plane"), [""])
sketch10.MapMode = "FlatFace"
sketch10.AttachmentOffset = App.Placement(App.Vector(0, 0, 36.960855), App.Rotation())
sketch10.addGeometry(Part.LineSegment(App.Vector(28.538401, 9.525, 0), App.Vector(56.8, 9.525, 0)), False)
sketch10.addGeometry(Part.LineSegment(App.Vector(56.8, 9.525, 0), App.Vector(56.8, 4.7625, 0)), False)
sketch10.addGeometry(Part.LineSegment(App.Vector(56.8, 4.7625, 0), App.Vector(31.4, 4.7625, 0)), False)
sketch10.addGeometry(Part.LineSegment(App.Vector(31.4, 4.7625, 0), App.Vector(28.538401, 9.525, 0)), False)
sketch10.addGeometry(Part.LineSegment(App.Vector(56.8, 9.525, 0), App.Vector(28.538401, 9.525, 0)), True)
sketch10.addConstraint(Sketcher.Constraint("Coincident", 0, 2, 1, 1))
sketch10.addConstraint(Sketcher.Constraint("Coincident", 1, 2, 2, 1))
sketch10.addConstraint(Sketcher.Constraint("Coincident", 2, 2, 3, 1))
sketch10.addConstraint(Sketcher.Constraint("Coincident", 3, 2, 0, 1))
sketch10.addConstraint(Sketcher.Constraint("Horizontal", 0))
sketch10.addConstraint(Sketcher.Constraint("Vertical", 1))
sketch10.addConstraint(Sketcher.Constraint("Horizontal", 2))
sketch10.addConstraint(Sketcher.Constraint("Horizontal", 4))
sketch10.addConstraint(Sketcher.Constraint("Coincident", 4, 1, 0, 2))
sketch10.addConstraint(Sketcher.Constraint("Equal", 0, 4))
sketch10.addConstraint(Sketcher.Constraint("DistanceX", 2, 2, 2, 1, Q("1 in")))
sketch10.addConstraint(Sketcher.Constraint("Angle", 3, Q("121 deg")))
sketch10.addConstraint(Sketcher.Constraint("DistanceY", 1, 2, 1, 1, Q("0.1875 in")))
sketch10.addConstraint(Sketcher.Constraint("DistanceY", -1, 1, 0, 2, Q("0.375 in")))
sketch10.addConstraint(Sketcher.Constraint("DistanceX", -1, 1, 0, 2, Q("56.8 mm")))
groove = body.newObject("PartDesign::Groove", "Groove")
groove.Profile = sketch10
groove.ReferenceAxis = (sketch10, ["Axis0"])
groove.Angle = 360
doc.recompute()

linearpattern = body.newObject("PartDesign::LinearPattern", "LinearPattern")
linearpattern.Originals = [groove]
linearpattern.Direction = (doc.getObject("Y_Axis"), [""])
linearpattern.Mode = "offset"
linearpattern.Offset = 73.920463
linearpattern.Occurrences = 2
body.Tip = linearpattern
doc.recompute()

datumplane2 = body.newObject("PartDesign::Plane", "DatumPlane001")
datumplane2.AttachmentSupport = (doc.getObject("YZ_Plane"), [""])
datumplane2.MapMode = "FlatFace"
datumplane2.AttachmentOffset = App.Placement(App.Vector(0, 0, 6), App.Rotation())
mirrored2 = body.newObject("PartDesign::Mirrored", "Mirrored001")
mirrored2.Originals = [groove]
mirrored2.MirrorPlane = (datumplane2, [""])
body.Tip = mirrored2

sketch11 = body.newObject("Sketcher::SketchObject", "Sketch010")
sketch11.AttachmentSupport = (doc.getObject("XZ_Plane"), [""])
sketch11.MapMode = "FlatFace"
sketch11.AttachmentOffset = App.Placement(App.Vector(0, 0, -36.959608), App.Rotation())
sketch11.addGeometry(Part.LineSegment(App.Vector(-44.8, 9.525, 0), App.Vector(-16.538401, 9.525, 0)), False)
sketch11.addGeometry(Part.LineSegment(App.Vector(-16.538401, 9.525, 0), App.Vector(-19.4, 4.7625, 0)), False)
sketch11.addGeometry(Part.LineSegment(App.Vector(-19.4, 4.7625, 0), App.Vector(-44.8, 4.7625, 0)), False)
sketch11.addGeometry(Part.LineSegment(App.Vector(-44.8, 4.7625, 0), App.Vector(-44.8, 9.525, 0)), False)
sketch11.addGeometry(Part.LineSegment(App.Vector(-16.538401, 9.525, 0), App.Vector(-44.8, 9.525, 0)), True)
sketch11.addConstraint(Sketcher.Constraint("Coincident", 0, 2, 1, 1))
sketch11.addConstraint(Sketcher.Constraint("Coincident", 1, 2, 2, 1))
sketch11.addConstraint(Sketcher.Constraint("Coincident", 2, 2, 3, 1))
sketch11.addConstraint(Sketcher.Constraint("Coincident", 3, 2, 0, 1))
sketch11.addConstraint(Sketcher.Constraint("Horizontal", 0))
sketch11.addConstraint(Sketcher.Constraint("Horizontal", 2))
sketch11.addConstraint(Sketcher.Constraint("Vertical", 3))
sketch11.addConstraint(Sketcher.Constraint("Horizontal", 4))
sketch11.addConstraint(Sketcher.Constraint("Coincident", 4, 1, 0, 2))
sketch11.addConstraint(Sketcher.Constraint("Vertical", 2, 2, 4, 2))
sketch11.addConstraint(Sketcher.Constraint("DistanceX", 2, 2, 2, 1, Q("1 in")))
sketch11.addConstraint(Sketcher.Constraint("Angle", 1, Q("-121 deg")))
sketch11.addConstraint(Sketcher.Constraint("DistanceY", 3, 1, 3, 2, Q("0.1875 in")))
sketch11.addConstraint(Sketcher.Constraint("DistanceY", -1, 1, 0, 2, Q("0.375 in")))
sketch11.addConstraint(Sketcher.Constraint("DistanceX", 0, 2, -1, 1, Q("16.538401 mm")))
groove2 = body.newObject("PartDesign::Groove", "Groove001")
groove2.Profile = sketch11
groove2.ReferenceAxis = (sketch11, ["Axis0"])
groove2.Angle = 360

sketch12 = body.newObject("Sketcher::SketchObject", "Sketch011")
sketch12.AttachmentSupport = (doc.getObject("XY_Plane"), [""])
sketch12.MapMode = "FlatFace"
sketch12.addGeometry(Part.Circle(App.Vector(6, -26.35, 0), App.Vector(0, 0, 1), 1.649997), False)
sketch12.addGeometry(Part.Circle(App.Vector(-20.35, 0, 0), App.Vector(0, 0, 1), 1.649997), False)
sketch12.addGeometry(Part.Circle(App.Vector(6, 26.35, 0), App.Vector(0, 0, 1), 1.649997), False)
sketch12.addGeometry(Part.Circle(App.Vector(32.35, 0, 0), App.Vector(0, 0, 1), 1.649997), False)
sketch12.addConstraint(Sketcher.Constraint("Equal", 0, 1))
sketch12.addConstraint(Sketcher.Constraint("Equal", 1, 2))
sketch12.addConstraint(Sketcher.Constraint("Equal", 2, 3))
sketch12.addConstraint(Sketcher.Constraint("Symmetric", 0, 3, 2, 3, -1))
sketch12.addConstraint(Sketcher.Constraint("PointOnObject", 1, 3, -1))
sketch12.addConstraint(Sketcher.Constraint("PointOnObject", 3, 3, -1))
sketch12.addConstraint(Sketcher.Constraint("Diameter", 0, Q("3.299993 mm")))
sketch12.addConstraint(Sketcher.Constraint("DistanceX", -1, 1, 0, 3, Q("6 mm")))
sketch12.addConstraint(Sketcher.Constraint("DistanceY", 0, 3, -1, 1, Q("26.35 mm")))
sketch12.addConstraint(Sketcher.Constraint("DistanceX", 1, 3, -1, 1, Q("20.35 mm")))
sketch12.addConstraint(Sketcher.Constraint("DistanceX", -1, 1, 3, 3, Q("32.35 mm")))
doc.recompute()
hole3 = body.newObject("PartDesign::Hole", "Hole002")
hole3.Profile = sketch12
hole3.ThreadType = "None"
hole3.Diameter = 3.299993
hole3.DepthType = "ThroughAll"
hole3.Reversed = True

sketch13 = body.newObject("Sketcher::SketchObject", "Sketch012")
sketch13.AttachmentSupport = (doc.getObject("YZ_Plane"), [""])
sketch13.MapMode = "FlatFace"
sketch13.AttachmentOffset = App.Placement(App.Vector(0, 0, -44.797885), App.Rotation())
sketch13.addGeometry(Part.Circle(App.Vector(-0.000624, 9.525, 0), App.Vector(0, 0, 1), 2.5527), False)
sketch13.addConstraint(Sketcher.Constraint("Diameter", 0, Q("0.201 in")))
sketch13.addConstraint(Sketcher.Constraint("DistanceY", -1, 1, 0, 3, Q("0.375 in")))
sketch13.addConstraint(Sketcher.Constraint("DistanceX", 0, 3, -1, 1, Q("0.000624 mm")))
doc.recompute()
hole4 = body.newObject("PartDesign::Hole", "Hole003")
hole4.Profile = sketch13
hole4.ThreadType = "None"
hole4.Diameter = Q("0.201 in")
hole4.DepthType = "Dimension"
hole4.Depth = Q("0.5 in")
hole4.DrillPoint = "Angled"
hole4.DrillPointAngle = 118
hole4.Reversed = True

sketch14 = body.newObject("Sketcher::SketchObject", "Sketch013")
sketch14.AttachmentSupport = (doc.getObject("YZ_Plane"), [""])
sketch14.MapMode = "FlatFace"
sketch14.AttachmentOffset = App.Placement(App.Vector(0, 0, 56.8), App.Rotation())
sketch14.addGeometry(Part.Circle(App.Vector(-0.000624, 9.525, 0), App.Vector(0, 0, 1), 2.5527), False)
sketch14.addConstraint(Sketcher.Constraint("Diameter", 0, Q("0.201 in")))
sketch14.addConstraint(Sketcher.Constraint("DistanceY", -1, 1, 0, 3, Q("0.375 in")))
sketch14.addConstraint(Sketcher.Constraint("DistanceX", 0, 3, -1, 1, Q("0.000624 mm")))
doc.recompute()
hole5 = body.newObject("PartDesign::Hole", "Hole004")
hole5.Profile = sketch14
hole5.ThreadType = "None"
hole5.Diameter = Q("0.201 in")
hole5.DepthType = "Dimension"
hole5.Depth = Q("0.5 in")
hole5.DrillPoint = "Angled"
hole5.DrillPointAngle = 118

doc.recompute()
